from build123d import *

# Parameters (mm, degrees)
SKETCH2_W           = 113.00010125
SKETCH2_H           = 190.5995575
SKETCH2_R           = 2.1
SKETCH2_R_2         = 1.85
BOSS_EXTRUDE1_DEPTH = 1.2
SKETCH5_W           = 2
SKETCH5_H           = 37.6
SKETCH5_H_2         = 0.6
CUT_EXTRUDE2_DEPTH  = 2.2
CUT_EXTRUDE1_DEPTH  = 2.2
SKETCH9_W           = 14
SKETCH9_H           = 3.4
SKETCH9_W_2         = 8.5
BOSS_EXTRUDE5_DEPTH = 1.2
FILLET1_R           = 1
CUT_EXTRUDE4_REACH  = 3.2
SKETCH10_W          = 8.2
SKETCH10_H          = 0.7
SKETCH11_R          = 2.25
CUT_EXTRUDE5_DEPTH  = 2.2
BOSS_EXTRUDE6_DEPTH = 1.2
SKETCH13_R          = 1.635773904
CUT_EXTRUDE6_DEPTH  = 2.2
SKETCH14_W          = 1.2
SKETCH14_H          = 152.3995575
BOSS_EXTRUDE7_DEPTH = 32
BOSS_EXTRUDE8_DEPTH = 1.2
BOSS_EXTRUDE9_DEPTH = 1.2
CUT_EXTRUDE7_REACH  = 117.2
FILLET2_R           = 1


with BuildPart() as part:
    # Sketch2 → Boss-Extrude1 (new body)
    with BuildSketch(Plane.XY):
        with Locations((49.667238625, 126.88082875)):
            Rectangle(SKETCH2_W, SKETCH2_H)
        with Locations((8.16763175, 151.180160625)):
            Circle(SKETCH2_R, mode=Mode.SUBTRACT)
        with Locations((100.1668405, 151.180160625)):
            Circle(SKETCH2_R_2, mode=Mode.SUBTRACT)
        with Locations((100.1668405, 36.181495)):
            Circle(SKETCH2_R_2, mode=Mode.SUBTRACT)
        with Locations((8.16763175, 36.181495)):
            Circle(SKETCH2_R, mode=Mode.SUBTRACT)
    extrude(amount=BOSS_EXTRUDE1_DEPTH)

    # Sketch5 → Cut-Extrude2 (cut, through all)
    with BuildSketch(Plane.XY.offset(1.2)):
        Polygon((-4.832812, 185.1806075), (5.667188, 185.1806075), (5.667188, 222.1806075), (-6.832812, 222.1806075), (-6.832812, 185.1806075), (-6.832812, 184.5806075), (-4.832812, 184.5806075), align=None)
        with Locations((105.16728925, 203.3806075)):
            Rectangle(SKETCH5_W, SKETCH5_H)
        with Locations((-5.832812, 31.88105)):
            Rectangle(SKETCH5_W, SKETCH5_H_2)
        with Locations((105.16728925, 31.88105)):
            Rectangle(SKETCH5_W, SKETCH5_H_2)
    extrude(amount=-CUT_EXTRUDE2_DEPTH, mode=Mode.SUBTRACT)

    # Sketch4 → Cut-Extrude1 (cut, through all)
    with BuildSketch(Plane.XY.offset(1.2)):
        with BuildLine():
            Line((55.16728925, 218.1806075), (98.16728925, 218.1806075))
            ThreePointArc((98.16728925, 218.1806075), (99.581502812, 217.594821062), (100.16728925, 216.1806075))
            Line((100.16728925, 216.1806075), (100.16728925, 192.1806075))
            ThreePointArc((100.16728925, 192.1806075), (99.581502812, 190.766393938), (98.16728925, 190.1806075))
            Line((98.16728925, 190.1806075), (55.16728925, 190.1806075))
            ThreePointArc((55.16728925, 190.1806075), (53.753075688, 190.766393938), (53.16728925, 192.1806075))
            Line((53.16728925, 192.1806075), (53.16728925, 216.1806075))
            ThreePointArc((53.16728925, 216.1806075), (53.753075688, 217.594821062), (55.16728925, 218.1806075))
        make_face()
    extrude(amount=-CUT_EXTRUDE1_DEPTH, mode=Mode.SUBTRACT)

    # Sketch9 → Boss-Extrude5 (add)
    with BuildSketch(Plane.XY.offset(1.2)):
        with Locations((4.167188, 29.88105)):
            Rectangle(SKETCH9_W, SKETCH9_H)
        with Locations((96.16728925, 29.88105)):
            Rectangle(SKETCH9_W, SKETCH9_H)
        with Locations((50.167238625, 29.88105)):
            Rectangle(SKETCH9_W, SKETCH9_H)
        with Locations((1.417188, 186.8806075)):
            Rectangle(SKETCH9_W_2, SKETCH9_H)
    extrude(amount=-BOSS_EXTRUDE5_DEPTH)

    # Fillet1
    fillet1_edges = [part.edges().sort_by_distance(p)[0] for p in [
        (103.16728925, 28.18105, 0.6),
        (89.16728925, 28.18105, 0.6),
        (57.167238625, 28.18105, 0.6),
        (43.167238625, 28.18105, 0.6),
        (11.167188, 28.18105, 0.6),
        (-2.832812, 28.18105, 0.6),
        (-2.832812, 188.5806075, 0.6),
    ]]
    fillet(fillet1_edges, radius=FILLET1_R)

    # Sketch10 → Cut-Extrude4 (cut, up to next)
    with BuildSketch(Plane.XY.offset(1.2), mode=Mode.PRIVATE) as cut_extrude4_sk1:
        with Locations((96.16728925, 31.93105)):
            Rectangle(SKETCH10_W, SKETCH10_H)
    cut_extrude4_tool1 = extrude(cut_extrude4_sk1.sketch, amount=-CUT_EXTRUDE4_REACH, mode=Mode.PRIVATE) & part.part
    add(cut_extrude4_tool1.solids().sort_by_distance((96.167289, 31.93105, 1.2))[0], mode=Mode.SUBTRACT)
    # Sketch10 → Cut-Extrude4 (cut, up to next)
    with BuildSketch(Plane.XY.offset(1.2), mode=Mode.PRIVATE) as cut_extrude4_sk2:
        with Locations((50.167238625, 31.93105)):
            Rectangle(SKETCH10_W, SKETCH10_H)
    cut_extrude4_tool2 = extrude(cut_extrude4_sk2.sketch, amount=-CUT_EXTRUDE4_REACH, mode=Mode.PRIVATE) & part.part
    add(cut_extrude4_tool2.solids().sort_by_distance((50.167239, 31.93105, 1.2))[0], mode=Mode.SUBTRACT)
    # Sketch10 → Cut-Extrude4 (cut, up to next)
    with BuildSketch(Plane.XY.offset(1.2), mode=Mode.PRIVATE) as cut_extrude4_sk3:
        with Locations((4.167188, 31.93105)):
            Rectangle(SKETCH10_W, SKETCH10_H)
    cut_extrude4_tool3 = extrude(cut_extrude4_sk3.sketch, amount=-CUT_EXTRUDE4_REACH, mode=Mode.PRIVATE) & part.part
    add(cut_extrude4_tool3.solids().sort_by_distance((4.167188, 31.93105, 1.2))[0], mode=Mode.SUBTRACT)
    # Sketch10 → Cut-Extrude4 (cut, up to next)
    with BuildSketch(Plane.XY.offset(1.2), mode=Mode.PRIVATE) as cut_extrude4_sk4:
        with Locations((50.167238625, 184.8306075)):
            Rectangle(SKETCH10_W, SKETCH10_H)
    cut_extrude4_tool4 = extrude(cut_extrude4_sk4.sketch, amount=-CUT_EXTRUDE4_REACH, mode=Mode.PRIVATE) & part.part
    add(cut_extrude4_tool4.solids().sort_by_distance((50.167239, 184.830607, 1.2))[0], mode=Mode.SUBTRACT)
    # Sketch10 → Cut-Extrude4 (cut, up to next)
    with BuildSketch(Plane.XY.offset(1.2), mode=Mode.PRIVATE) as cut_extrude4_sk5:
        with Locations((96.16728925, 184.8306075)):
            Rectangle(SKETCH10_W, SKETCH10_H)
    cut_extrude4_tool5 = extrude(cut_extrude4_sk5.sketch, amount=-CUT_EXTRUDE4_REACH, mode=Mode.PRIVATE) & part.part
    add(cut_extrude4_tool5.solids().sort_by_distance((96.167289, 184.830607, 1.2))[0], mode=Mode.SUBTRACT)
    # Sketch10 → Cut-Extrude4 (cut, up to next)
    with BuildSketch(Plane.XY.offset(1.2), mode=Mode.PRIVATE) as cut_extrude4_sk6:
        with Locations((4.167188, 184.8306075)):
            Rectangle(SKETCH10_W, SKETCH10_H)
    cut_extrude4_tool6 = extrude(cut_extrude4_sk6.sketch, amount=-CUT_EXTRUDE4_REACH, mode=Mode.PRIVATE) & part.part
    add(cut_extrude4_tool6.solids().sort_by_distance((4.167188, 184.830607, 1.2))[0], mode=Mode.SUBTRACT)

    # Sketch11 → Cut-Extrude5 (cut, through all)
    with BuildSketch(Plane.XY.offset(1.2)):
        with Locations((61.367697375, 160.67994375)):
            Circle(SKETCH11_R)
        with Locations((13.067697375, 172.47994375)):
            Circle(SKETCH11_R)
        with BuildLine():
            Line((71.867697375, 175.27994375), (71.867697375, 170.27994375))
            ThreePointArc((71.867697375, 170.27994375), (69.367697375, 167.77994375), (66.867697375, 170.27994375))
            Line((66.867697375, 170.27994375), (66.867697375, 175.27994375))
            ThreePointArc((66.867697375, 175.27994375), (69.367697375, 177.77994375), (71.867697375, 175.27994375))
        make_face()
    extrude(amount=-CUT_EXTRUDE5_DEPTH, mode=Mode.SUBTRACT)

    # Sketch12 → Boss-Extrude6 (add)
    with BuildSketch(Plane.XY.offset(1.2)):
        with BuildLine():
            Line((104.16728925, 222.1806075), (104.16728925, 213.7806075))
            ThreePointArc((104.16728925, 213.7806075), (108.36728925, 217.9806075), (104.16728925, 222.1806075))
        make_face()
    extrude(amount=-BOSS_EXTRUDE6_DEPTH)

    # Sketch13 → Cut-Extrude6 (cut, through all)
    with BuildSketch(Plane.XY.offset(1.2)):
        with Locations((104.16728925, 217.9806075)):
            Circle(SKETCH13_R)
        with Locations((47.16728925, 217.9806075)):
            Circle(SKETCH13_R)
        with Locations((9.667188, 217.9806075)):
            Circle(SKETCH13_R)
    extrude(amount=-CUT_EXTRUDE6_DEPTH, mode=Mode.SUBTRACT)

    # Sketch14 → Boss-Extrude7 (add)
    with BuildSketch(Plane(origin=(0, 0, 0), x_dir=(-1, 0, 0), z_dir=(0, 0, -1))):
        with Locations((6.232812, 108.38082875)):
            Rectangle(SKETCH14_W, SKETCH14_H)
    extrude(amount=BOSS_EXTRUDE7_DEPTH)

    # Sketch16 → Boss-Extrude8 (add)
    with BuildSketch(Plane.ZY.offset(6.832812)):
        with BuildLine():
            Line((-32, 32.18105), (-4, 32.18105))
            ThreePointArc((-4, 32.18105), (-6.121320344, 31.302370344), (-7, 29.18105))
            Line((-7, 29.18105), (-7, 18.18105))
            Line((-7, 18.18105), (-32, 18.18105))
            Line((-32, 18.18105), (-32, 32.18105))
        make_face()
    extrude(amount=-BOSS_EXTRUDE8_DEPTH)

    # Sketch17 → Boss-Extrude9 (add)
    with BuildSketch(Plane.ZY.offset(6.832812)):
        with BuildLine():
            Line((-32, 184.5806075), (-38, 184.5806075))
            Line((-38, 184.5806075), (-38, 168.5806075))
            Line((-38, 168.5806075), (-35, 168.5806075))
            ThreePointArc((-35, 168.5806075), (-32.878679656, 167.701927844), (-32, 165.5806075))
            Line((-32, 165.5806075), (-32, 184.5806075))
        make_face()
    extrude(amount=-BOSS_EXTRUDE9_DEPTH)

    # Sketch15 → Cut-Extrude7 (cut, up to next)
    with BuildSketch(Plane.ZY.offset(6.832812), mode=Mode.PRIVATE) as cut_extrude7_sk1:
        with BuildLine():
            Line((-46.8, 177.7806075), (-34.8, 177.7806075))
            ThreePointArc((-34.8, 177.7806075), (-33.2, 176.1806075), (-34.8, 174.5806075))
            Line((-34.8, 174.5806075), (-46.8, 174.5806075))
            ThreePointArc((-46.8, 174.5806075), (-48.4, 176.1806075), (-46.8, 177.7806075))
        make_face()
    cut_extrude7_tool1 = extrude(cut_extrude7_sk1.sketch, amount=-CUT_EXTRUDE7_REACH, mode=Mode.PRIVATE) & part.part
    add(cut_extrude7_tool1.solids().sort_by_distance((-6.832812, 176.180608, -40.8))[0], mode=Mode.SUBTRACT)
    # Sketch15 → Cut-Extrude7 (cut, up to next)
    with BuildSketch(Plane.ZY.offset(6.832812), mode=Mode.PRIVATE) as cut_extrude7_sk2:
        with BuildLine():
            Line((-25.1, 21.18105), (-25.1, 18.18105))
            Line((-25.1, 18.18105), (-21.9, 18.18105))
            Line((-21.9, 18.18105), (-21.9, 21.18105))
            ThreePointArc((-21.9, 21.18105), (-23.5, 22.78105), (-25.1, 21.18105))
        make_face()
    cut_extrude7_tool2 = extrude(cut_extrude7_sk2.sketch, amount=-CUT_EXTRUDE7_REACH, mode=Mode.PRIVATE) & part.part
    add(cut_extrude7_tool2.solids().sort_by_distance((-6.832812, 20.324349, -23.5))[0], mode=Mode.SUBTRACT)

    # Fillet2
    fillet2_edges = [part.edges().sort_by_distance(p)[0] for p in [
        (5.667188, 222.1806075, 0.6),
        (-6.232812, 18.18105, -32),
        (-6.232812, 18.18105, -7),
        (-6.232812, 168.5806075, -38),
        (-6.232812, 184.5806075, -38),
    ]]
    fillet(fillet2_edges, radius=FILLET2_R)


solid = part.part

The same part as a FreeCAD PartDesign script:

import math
import FreeCAD as App
import Part
import Sketcher
from FreeCAD import Vector


def edges_at(feature, points):
    """Names of the edges that pass closest to the given points."""
    edges = feature.Shape.Edges
    near = lambda p: min(range(len(edges)), key=lambda i: edges[i].distToShape(Part.Vertex(*p))[0])
    return sorted({f"Edge{near(p) + 1}" for p in points})

doc = App.newDocument("Part")
body = doc.addObject("PartDesign::Body", "Body")

# Sketch on XY plane
sketch1 = body.newObject("Sketcher::SketchObject", "Sketch")
sketch1.AttachmentSupport = (doc.getObject("XY_Plane"), [""])
sketch1.MapMode = "FlatFace"
sketch1.addGeometry([
    Part.LineSegment(Vector(-6.8, 222.2, 0), Vector(-6.8, 31.6, 0)),  # 0
    Part.LineSegment(Vector(-6.8, 31.6, 0), Vector(106.2, 31.6, 0)),  # 1
    Part.LineSegment(Vector(106.2, 31.6, 0), Vector(106.2, 222.2, 0)),  # 2
    Part.LineSegment(Vector(106.2, 222.2, 0), Vector(-6.8, 222.2, 0)),  # 3
    Part.Circle(Vector(8.2, 36.2, 0), Vector(0, 0, 1), 2.1),  # 4
    Part.Circle(Vector(100.2, 36.2, 0), Vector(0, 0, 1), 1.9),  # 5
    Part.Circle(Vector(8.2, 151.2, 0), Vector(0, 0, 1), 2.1),  # 6
    Part.Circle(Vector(100.2, 151.2, 0), Vector(0, 0, 1), 1.9),  # 7
], False)
sketch1.addConstraint([
    Sketcher.Constraint("Coincident", 0, 2, 1, 1),
    Sketcher.Constraint("Coincident", 1, 2, 2, 1),
    Sketcher.Constraint("Coincident", 2, 2, 3, 1),
    Sketcher.Constraint("Coincident", 3, 2, 0, 1),
    Sketcher.Constraint("Vertical", 0),
    Sketcher.Constraint("Horizontal", 1),
    Sketcher.Constraint("Vertical", 2),
    Sketcher.Constraint("Horizontal", 3),
    Sketcher.Constraint("Equal", 4, 6),
    Sketcher.Constraint("Equal", 5, 7),
    Sketcher.Constraint("Horizontal", 4, 3, 5, 3),
    Sketcher.Constraint("Horizontal", 6, 3, 7, 3),
    Sketcher.Constraint("Vertical", 4, 3, 6, 3),
    Sketcher.Constraint("Vertical", 5, 3, 7, 3),
    Sketcher.Constraint("Diameter", 4, 4.2),
    Sketcher.Constraint("Diameter", 5, 3.7),
    Sketcher.Constraint("DistanceX", 1, 1, 1, 2, 113.000101),
    Sketcher.Constraint("DistanceY", 0, 2, 0, 1, 190.599558),
    Sketcher.Constraint("DistanceX", -1, 1, 4, 3, 8.167632),
    Sketcher.Constraint("DistanceX", -1, 1, 5, 3, 100.166841),
    Sketcher.Constraint("DistanceY", -1, 1, 6, 3, 151.180161),
    Sketcher.Constraint("DistanceX", 0, 2, -1, 1, 6.832812),
    Sketcher.Constraint("DistanceY", -1, 1, 0, 2, 31.58105),
    Sketcher.Constraint("DistanceY", -1, 1, 4, 3, 36.181495),
])
pad1 = body.newObject("PartDesign::Pad", "Pad")
pad1.Profile = sketch1
pad1.Length = 1.2

# Sketch on XY plane
sketch2 = body.newObject("Sketcher::SketchObject", "Sketch001")
sketch2.AttachmentSupport = (doc.getObject("XY_Plane"), [""])
sketch2.MapMode = "FlatFace"
sketch2.AttachmentOffset = App.Placement(Vector(0, 0, 1.2), App.Rotation())
sketch2.addGeometry([
    Part.LineSegment(Vector(-4.8, 185.2, 0), Vector(5.7, 185.2, 0)),  # 0
    Part.LineSegment(Vector(5.7, 185.2, 0), Vector(5.7, 222.2, 0)),  # 1
    Part.LineSegment(Vector(5.7, 222.2, 0), Vector(-6.8, 222.2, 0)),  # 2
    Part.LineSegment(Vector(-6.8, 222.2, 0), Vector(-6.8, 184.6, 0)),  # 3
    Part.LineSegment(Vector(-6.8, 184.6, 0), Vector(-4.8, 184.6, 0)),  # 4
    Part.LineSegment(Vector(-4.8, 184.6, 0), Vector(-4.8, 185.2, 0)),  # 5
    Part.LineSegment(Vector(104.2, 222.2, 0), Vector(104.2, 184.6, 0)),  # 6
    Part.LineSegment(Vector(104.2, 184.6, 0), Vector(106.2, 184.6, 0)),  # 7
    Part.LineSegment(Vector(106.2, 184.6, 0), Vector(106.2, 222.2, 0)),  # 8
    Part.LineSegment(Vector(106.2, 222.2, 0), Vector(104.2, 222.2, 0)),  # 9
    Part.LineSegment(Vector(-6.8, 32.2, 0), Vector(-6.8, 31.6, 0)),  # 10
    Part.LineSegment(Vector(-6.8, 31.6, 0), Vector(-4.8, 31.6, 0)),  # 11
    Part.LineSegment(Vector(-4.8, 31.6, 0), Vector(-4.8, 32.2, 0)),  # 12
    Part.LineSegment(Vector(-4.8, 32.2, 0), Vector(-6.8, 32.2, 0)),  # 13
    Part.LineSegment(Vector(104.2, 32.2, 0), Vector(104.2, 31.6, 0)),  # 14
    Part.LineSegment(Vector(104.2, 31.6, 0), Vector(106.2, 31.6, 0)),  # 15
    Part.LineSegment(Vector(106.2, 31.6, 0), Vector(106.2, 32.2, 0)),  # 16
    Part.LineSegment(Vector(106.2, 32.2, 0), Vector(104.2, 32.2, 0)),  # 17
], False)
sketch2.addConstraint([
    Sketcher.Constraint("Coincident", 0, 2, 1, 1),
    Sketcher.Constraint("Coincident", 1, 2, 2, 1),
    Sketcher.Constraint("Coincident", 2, 2, 3, 1),
    Sketcher.Constraint("Coincident", 3, 2, 4, 1),
    Sketcher.Constraint("Coincident", 4, 2, 5, 1),
    Sketcher.Constraint("Coincident", 5, 2, 0, 1),
    Sketcher.Constraint("Coincident", 6, 2, 7, 1),
    Sketcher.Constraint("Coincident", 7, 2, 8, 1),
    Sketcher.Constraint("Coincident", 8, 2, 9, 1),
    Sketcher.Constraint("Coincident", 9, 2, 6, 1),
    Sketcher.Constraint("Coincident", 10, 2, 11, 1),
    Sketcher.Constraint("Coincident", 11, 2, 12, 1),
    Sketcher.Constraint("Coincident", 12, 2, 13, 1),
    Sketcher.Constraint("Coincident", 13, 2, 10, 1),
    Sketcher.Constraint("Coincident", 14, 2, 15, 1),
    Sketcher.Constraint("Coincident", 15, 2, 16, 1),
    Sketcher.Constraint("Coincident", 16, 2, 17, 1),
    Sketcher.Constraint("Coincident", 17, 2, 14, 1),
    Sketcher.Constraint("Horizontal", 0),
    Sketcher.Constraint("Vertical", 1),
    Sketcher.Constraint("Horizontal", 2),
    Sketcher.Constraint("Vertical", 3),
    Sketcher.Constraint("Horizontal", 4),
    Sketcher.Constraint("Vertical", 5),
    Sketcher.Constraint("Vertical", 6),
    Sketcher.Constraint("Horizontal", 7),
    Sketcher.Constraint("Vertical", 8),
    Sketcher.Constraint("Horizontal", 9),
    Sketcher.Constraint("Vertical", 10),
    Sketcher.Constraint("Horizontal", 11),
    Sketcher.Constraint("Vertical", 12),
    Sketcher.Constraint("Horizontal", 13),
    Sketcher.Constraint("Vertical", 14),
    Sketcher.Constraint("Horizontal", 15),
    Sketcher.Constraint("Vertical", 16),
    Sketcher.Constraint("Horizontal", 17),
    Sketcher.Constraint("Horizontal", 4, 2, 6, 2),
    Sketcher.Constraint("Horizontal", 2, 2, 8, 2),
    Sketcher.Constraint("Horizontal", 11, 2, 14, 2),
    Sketcher.Constraint("Horizontal", 13, 2, 16, 2),
    Sketcher.Constraint("Vertical", 3, 2, 10, 2),
    Sketcher.Constraint("Vertical", 5, 2, 11, 2),
    Sketcher.Constraint("Vertical", 9, 2, 14, 2),
    Sketcher.Constraint("Vertical", 8, 2, 15, 2),
    Sketcher.Constraint("Equal", 4, 7),
    Sketcher.Constraint("Equal", 5, 10),
    Sketcher.Constraint("DistanceX", 4, 1, 4, 2, 2.0),
    Sketcher.Constraint("DistanceY", 1, 1, 1, 2, 37.0),
    Sketcher.Constraint("DistanceX", 0, 1, 0, 2, 10.5),
    Sketcher.Constraint("DistanceY", 3, 2, 3, 1, 37.6),
    Sketcher.Constraint("DistanceX", 0, 2, 6, 2, 98.500101),
    Sketcher.Constraint("DistanceX", -1, 1, 0, 2, 5.667188),
    Sketcher.Constraint("DistanceY", -1, 1, 10, 2, 31.58105),
    Sketcher.Constraint("DistanceY", -1, 1, 0, 2, 185.180608),
])
pocket1 = body.newObject("PartDesign::Pocket", "Pocket")
pocket1.Profile = sketch2
pocket1.Type = "ThroughAll"

# Sketch on XY plane
sketch3 = body.newObject("Sketcher::SketchObject", "Sketch002")
sketch3.AttachmentSupport = (doc.getObject("XY_Plane"), [""])
sketch3.MapMode = "FlatFace"
sketch3.AttachmentOffset = App.Placement(Vector(0, 0, 1.2), App.Rotation())
sketch3.addGeometry([
    Part.LineSegment(Vector(98.2, 218.2, 0), Vector(55.2, 218.2, 0)),  # 0
    Part.ArcOfCircle(Part.Circle(Vector(55.2, 216.2, 0), Vector(0, 0, 1), 2), math.radians(90), math.radians(180)),  # 1
    Part.LineSegment(Vector(53.2, 216.2, 0), Vector(53.2, 192.2, 0)),  # 2
    Part.ArcOfCircle(Part.Circle(Vector(55.2, 192.2, 0), Vector(0, 0, 1), 2), math.radians(-180), math.radians(-90)),  # 3
    Part.LineSegment(Vector(55.2, 190.2, 0), Vector(98.2, 190.2, 0)),  # 4
    Part.ArcOfCircle(Part.Circle(Vector(98.2, 192.2, 0), Vector(0, 0, 1), 2), math.radians(-90), math.radians(0)),  # 5
    Part.LineSegment(Vector(100.2, 192.2, 0), Vector(100.2, 216.2, 0)),  # 6
    Part.ArcOfCircle(Part.Circle(Vector(98.2, 216.2, 0), Vector(0, 0, 1), 2), math.radians(0), math.radians(90)),  # 7
], False)
sketch3.addConstraint([
    Sketcher.Constraint("Tangent", 0, 2, 1, 1),
    Sketcher.Constraint("Tangent", 1, 2, 2, 1),
    Sketcher.Constraint("Tangent", 2, 2, 3, 1),
    Sketcher.Constraint("Tangent", 3, 2, 4, 1),
    Sketcher.Constraint("Tangent", 4, 2, 5, 1),
    Sketcher.Constraint("Tangent", 5, 2, 6, 1),
    Sketcher.Constraint("Tangent", 6, 2, 7, 1),
    Sketcher.Constraint("Tangent", 7, 2, 0, 1),
    Sketcher.Constraint("Horizontal", 0),
    Sketcher.Constraint("Vertical", 2),
    Sketcher.Constraint("Horizontal", 4),
    Sketcher.Constraint("Vertical", 6),
    Sketcher.Constraint("Equal", 1, 3),
    Sketcher.Constraint("Equal", 3, 5),
    Sketcher.Constraint("Equal", 5, 7),
    Sketcher.Constraint("Radius", 1, 2.0),
    Sketcher.Constraint("DistanceX", 0, 2, 0, 1, 43.0),
    Sketcher.Constraint("DistanceY", 2, 2, 2, 1, 24.0),
    Sketcher.Constraint("DistanceX", -1, 1, 1, 3, 55.167289),
    Sketcher.Constraint("DistanceY", -1, 1, 1, 3, 216.180607),
])
pocket2 = body.newObject("PartDesign::Pocket", "Pocket001")
pocket2.Profile = sketch3
pocket2.Type = "ThroughAll"

# Sketch on XY plane
sketch4 = body.newObject("Sketcher::SketchObject", "Sketch003")
sketch4.AttachmentSupport = (doc.getObject("XY_Plane"), [""])
sketch4.MapMode = "FlatFace"
sketch4.AttachmentOffset = App.Placement(Vector(0, 0, 1.2), App.Rotation())
sketch4.addGeometry([
    Part.LineSegment(Vector(-2.8, 31.6, 0), Vector(-2.8, 28.2, 0)),  # 0
    Part.LineSegment(Vector(-2.8, 28.2, 0), Vector(11.2, 28.2, 0)),  # 1
    Part.LineSegment(Vector(11.2, 28.2, 0), Vector(11.2, 31.6, 0)),  # 2
    Part.LineSegment(Vector(11.2, 31.6, 0), Vector(-2.8, 31.6, 0)),  # 3
    Part.LineSegment(Vector(89.2, 31.6, 0), Vector(89.2, 28.2, 0)),  # 4
    Part.LineSegment(Vector(89.2, 28.2, 0), Vector(103.2, 28.2, 0)),  # 5
    Part.LineSegment(Vector(103.2, 28.2, 0), Vector(103.2, 31.6, 0)),  # 6
    Part.LineSegment(Vector(103.2, 31.6, 0), Vector(89.2, 31.6, 0)),  # 7
    Part.LineSegment(Vector(43.2, 31.6, 0), Vector(43.2, 28.2, 0)),  # 8
    Part.LineSegment(Vector(43.2, 28.2, 0), Vector(57.2, 28.2, 0)),  # 9
    Part.LineSegment(Vector(57.2, 28.2, 0), Vector(57.2, 31.6, 0)),  # 10
    Part.LineSegment(Vector(57.2, 31.6, 0), Vector(43.2, 31.6, 0)),  # 11
    Part.LineSegment(Vector(-2.8, 188.6, 0), Vector(-2.8, 185.2, 0)),  # 12
    Part.LineSegment(Vector(-2.8, 185.2, 0), Vector(5.7, 185.2, 0)),  # 13
    Part.LineSegment(Vector(5.7, 185.2, 0), Vector(5.7, 188.6, 0)),  # 14
    Part.LineSegment(Vector(5.7, 188.6, 0), Vector(-2.8, 188.6, 0)),  # 15
], False)
sketch4.addConstraint([
    Sketcher.Constraint("Coincident", 0, 2, 1, 1),
    Sketcher.Constraint("Coincident", 1, 2, 2, 1),
    Sketcher.Constraint("Coincident", 2, 2, 3, 1),
    Sketcher.Constraint("Coincident", 3, 2, 0, 1),
    Sketcher.Constraint("Coincident", 4, 2, 5, 1),
    Sketcher.Constraint("Coincident", 5, 2, 6, 1),
    Sketcher.Constraint("Coincident", 6, 2, 7, 1),
    Sketcher.Constraint("Coincident", 7, 2, 4, 1),
    Sketcher.Constraint("Coincident", 8, 2, 9, 1),
    Sketcher.Constraint("Coincident", 9, 2, 10, 1),
    Sketcher.Constraint("Coincident", 10, 2, 11, 1),
    Sketcher.Constraint("Coincident", 11, 2, 8, 1),
    Sketcher.Constraint("Coincident", 12, 2, 13, 1),
    Sketcher.Constraint("Coincident", 13, 2, 14, 1),
    Sketcher.Constraint("Coincident", 14, 2, 15, 1),
    Sketcher.Constraint("Coincident", 15, 2, 12, 1),
    Sketcher.Constraint("Vertical", 0),
    Sketcher.Constraint("Horizontal", 1),
    Sketcher.Constraint("Vertical", 2),
    Sketcher.Constraint("Horizontal", 3),
    Sketcher.Constraint("Vertical", 4),
    Sketcher.Constraint("Horizontal", 5),
    Sketcher.Constraint("Vertical", 6),
    Sketcher.Constraint("Horizontal", 7),
    Sketcher.Constraint("Vertical", 8),
    Sketcher.Constraint("Horizontal", 9),
    Sketcher.Constraint("Vertical", 10),
    Sketcher.Constraint("Horizontal", 11),
    Sketcher.Constraint("Vertical", 12),
    Sketcher.Constraint("Horizontal", 13),
    Sketcher.Constraint("Vertical", 14),
    Sketcher.Constraint("Horizontal", 15),
    Sketcher.Constraint("Horizontal", 1, 2, 4, 2),
    Sketcher.Constraint("Horizontal", 3, 2, 6, 2),
    Sketcher.Constraint("Horizontal", 5, 2, 8, 2),
    Sketcher.Constraint("Horizontal", 7, 2, 10, 2),
    Sketcher.Constraint("Vertical", 3, 2, 12, 2),
    Sketcher.Constraint("Equal", 3, 5),
    Sketcher.Constraint("Equal", 7, 9),
    Sketcher.Constraint("Equal", 10, 12),
    Sketcher.Constraint("DistanceX", 1, 1, 1, 2, 14.0),
    Sketcher.Constraint("DistanceX", 13, 1, 13, 2, 8.5),
    Sketcher.Constraint("DistanceY", 0, 2, 0, 1, 3.4),
    Sketcher.Constraint("DistanceX", 1, 2, 4, 2, 78.000101),
    Sketcher.Constraint("DistanceY", -1, 1, 0, 2, 28.18105),
    Sketcher.Constraint("DistanceX", -1, 1, 4, 2, 89.167289),
    Sketcher.Constraint("DistanceX", -1, 1, 8, 2, 43.167239),
    Sketcher.Constraint("DistanceY", -1, 1, 12, 2, 185.180608),
])
pad2 = body.newObject("PartDesign::Pad", "Pad001")
pad2.Profile = sketch4
pad2.Length = 1.2
pad2.Reversed = True
doc.recompute()

fillet = body.newObject("PartDesign::Fillet", "Fillet")
fillet.Base = (pad2, edges_at(pad2, [
    (103.167, 28.181, 0.6),
    (89.167, 28.181, 0.6),
    (57.167, 28.181, 0.6),
    (43.167, 28.181, 0.6),
    (11.167, 28.181, 0.6),
    (-2.833, 28.181, 0.6),
    (-2.833, 188.581, 0.6),
]))
fillet.Radius = 1

# Sketch on XY plane
sketch5 = body.newObject("Sketcher::SketchObject", "Sketch004")
sketch5.AttachmentSupport = (doc.getObject("XY_Plane"), [""])
sketch5.MapMode = "FlatFace"
sketch5.AttachmentOffset = App.Placement(Vector(0, 0, 1.2), App.Rotation())
sketch5.addGeometry([
    Part.LineSegment(Vector(92.1, 32.3, 0), Vector(92.1, 31.6, 0)),
    Part.LineSegment(Vector(92.1, 31.6, 0), Vector(100.3, 31.6, 0)),
    Part.LineSegment(Vector(100.3, 31.6, 0), Vector(100.3, 32.3, 0)),
    Part.LineSegment(Vector(100.3, 32.3, 0), Vector(92.1, 32.3, 0)),
], False)
sketch5.addConstraint([
    Sketcher.Constraint("Coincident", 0, 2, 1, 1),
    Sketcher.Constraint("Coincident", 1, 2, 2, 1),
    Sketcher.Constraint("Coincident", 2, 2, 3, 1),
    Sketcher.Constraint("Coincident", 3, 2, 0, 1),
    Sketcher.Constraint("Vertical", 0),
    Sketcher.Constraint("Horizontal", 1),
    Sketcher.Constraint("Vertical", 2),
    Sketcher.Constraint("Horizontal", 3),
    Sketcher.Constraint("DistanceX", 1, 1, 1, 2, 8.2),
    Sketcher.Constraint("DistanceY", 0, 2, 0, 1, 0.7),
    Sketcher.Constraint("DistanceX", -1, 1, 0, 2, 92.067289),
    Sketcher.Constraint("DistanceY", -1, 1, 0, 2, 31.58105),
])
pocket3 = body.newObject("PartDesign::Pocket", "Pocket002")
pocket3.Profile = sketch5
pocket3.Type = "UpToFirst"

# Sketch on XY plane
sketch6 = body.newObject("Sketcher::SketchObject", "Sketch005")
sketch6.AttachmentSupport = (doc.getObject("XY_Plane"), [""])
sketch6.MapMode = "FlatFace"
sketch6.AttachmentOffset = App.Placement(Vector(0, 0, 1.2), App.Rotation())
sketch6.addGeometry([
    Part.LineSegment(Vector(46.1, 32.3, 0), Vector(46.1, 31.6, 0)),
    Part.LineSegment(Vector(46.1, 31.6, 0), Vector(54.3, 31.6, 0)),
    Part.LineSegment(Vector(54.3, 31.6, 0), Vector(54.3, 32.3, 0)),
    Part.LineSegment(Vector(54.3, 32.3, 0), Vector(46.1, 32.3, 0)),
], False)
sketch6.addConstraint([
    Sketcher.Constraint("Coincident", 0, 2, 1, 1),
    Sketcher.Constraint("Coincident", 1, 2, 2, 1),
    Sketcher.Constraint("Coincident", 2, 2, 3, 1),
    Sketcher.Constraint("Coincident", 3, 2, 0, 1),
    Sketcher.Constraint("Vertical", 0),
    Sketcher.Constraint("Horizontal", 1),
    Sketcher.Constraint("Vertical", 2),
    Sketcher.Constraint("Horizontal", 3),
    Sketcher.Constraint("DistanceX", 1, 1, 1, 2, 8.2),
    Sketcher.Constraint("DistanceY", 0, 2, 0, 1, 0.7),
    Sketcher.Constraint("DistanceX", -1, 1, 0, 2, 46.067239),
    Sketcher.Constraint("DistanceY", -1, 1, 0, 2, 31.58105),
])
pocket4 = body.newObject("PartDesign::Pocket", "Pocket003")
pocket4.Profile = sketch6
pocket4.Type = "UpToFirst"

# Sketch on XY plane
sketch7 = body.newObject("Sketcher::SketchObject", "Sketch006")
sketch7.AttachmentSupport = (doc.getObject("XY_Plane"), [""])
sketch7.MapMode = "FlatFace"
sketch7.AttachmentOffset = App.Placement(Vector(0, 0, 1.2), App.Rotation())
sketch7.addGeometry([
    Part.LineSegment(Vector(0.1, 32.3, 0), Vector(0.1, 31.6, 0)),
    Part.LineSegment(Vector(0.1, 31.6, 0), Vector(8.3, 31.6, 0)),
    Part.LineSegment(Vector(8.3, 31.6, 0), Vector(8.3, 32.3, 0)),
    Part.LineSegment(Vector(8.3, 32.3, 0), Vector(0.1, 32.3, 0)),
], False)
sketch7.addConstraint([
    Sketcher.Constraint("Coincident", 0, 2, 1, 1),
    Sketcher.Constraint("Coincident", 1, 2, 2, 1),
    Sketcher.Constraint("Coincident", 2, 2, 3, 1),
    Sketcher.Constraint("Coincident", 3, 2, 0, 1),
    Sketcher.Constraint("Vertical", 0),
    Sketcher.Constraint("Horizontal", 1),
    Sketcher.Constraint("Vertical", 2),
    Sketcher.Constraint("Horizontal", 3),
    Sketcher.Constraint("DistanceX", 1, 1, 1, 2, 8.2),
    Sketcher.Constraint("DistanceY", 0, 2, 0, 1, 0.7),
    Sketcher.Constraint("DistanceY", -1, 1, 0, 2, 31.58105),
    Sketcher.Constraint("DistanceX", -1, 1, 1, 2, 8.267188),
])
pocket5 = body.newObject("PartDesign::Pocket", "Pocket004")
pocket5.Profile = sketch7
pocket5.Type = "UpToFirst"

# Sketch on XY plane
sketch8 = body.newObject("Sketcher::SketchObject", "Sketch007")
sketch8.AttachmentSupport = (doc.getObject("XY_Plane"), [""])
sketch8.MapMode = "FlatFace"
sketch8.AttachmentOffset = App.Placement(Vector(0, 0, 1.2), App.Rotation())
sketch8.addGeometry([
    Part.LineSegment(Vector(46.1, 185.2, 0), Vector(46.1, 184.5, 0)),
    Part.LineSegment(Vector(46.1, 184.5, 0), Vector(54.3, 184.5, 0)),
    Part.LineSegment(Vector(54.3, 184.5, 0), Vector(54.3, 185.2, 0)),
    Part.LineSegment(Vector(54.3, 185.2, 0), Vector(46.1, 185.2, 0)),
], False)
sketch8.addConstraint([
    Sketcher.Constraint("Coincident", 0, 2, 1, 1),
    Sketcher.Constraint("Coincident", 1, 2, 2, 1),
    Sketcher.Constraint("Coincident", 2, 2, 3, 1),
    Sketcher.Constraint("Coincident", 3, 2, 0, 1),
    Sketcher.Constraint("Vertical", 0),
    Sketcher.Constraint("Horizontal", 1),
    Sketcher.Constraint("Vertical", 2),
    Sketcher.Constraint("Horizontal", 3),
    Sketcher.Constraint("DistanceX", 1, 1, 1, 2, 8.2),
    Sketcher.Constraint("DistanceY", 0, 2, 0, 1, 0.7),
    Sketcher.Constraint("DistanceX", -1, 1, 0, 2, 46.067239),
    Sketcher.Constraint("DistanceY", -1, 1, 0, 2, 184.480607),
])
pocket6 = body.newObject("PartDesign::Pocket", "Pocket005")
pocket6.Profile = sketch8
pocket6.Type = "UpToFirst"

# Sketch on XY plane
sketch9 = body.newObject("Sketcher::SketchObject", "Sketch008")
sketch9.AttachmentSupport = (doc.getObject("XY_Plane"), [""])
sketch9.MapMode = "FlatFace"
sketch9.AttachmentOffset = App.Placement(Vector(0, 0, 1.2), App.Rotation())
sketch9.addGeometry([
    Part.LineSegment(Vector(92.1, 185.2, 0), Vector(92.1, 184.5, 0)),
    Part.LineSegment(Vector(92.1, 184.5, 0), Vector(100.3, 184.5, 0)),
    Part.LineSegment(Vector(100.3, 184.5, 0), Vector(100.3, 185.2, 0)),
    Part.LineSegment(Vector(100.3, 185.2, 0), Vector(92.1, 185.2, 0)),
], False)
sketch9.addConstraint([
    Sketcher.Constraint("Coincident", 0, 2, 1, 1),
    Sketcher.Constraint("Coincident", 1, 2, 2, 1),
    Sketcher.Constraint("Coincident", 2, 2, 3, 1),
    Sketcher.Constraint("Coincident", 3, 2, 0, 1),
    Sketcher.Constraint("Vertical", 0),
    Sketcher.Constraint("Horizontal", 1),
    Sketcher.Constraint("Vertical", 2),
    Sketcher.Constraint("Horizontal", 3),
    Sketcher.Constraint("DistanceX", 1, 1, 1, 2, 8.2),
    Sketcher.Constraint("DistanceY", 0, 2, 0, 1, 0.7),
    Sketcher.Constraint("DistanceX", -1, 1, 0, 2, 92.067289),
    Sketcher.Constraint("DistanceY", -1, 1, 0, 2, 184.480607),
])
pocket7 = body.newObject("PartDesign::Pocket", "Pocket006")
pocket7.Profile = sketch9
pocket7.Type = "UpToFirst"

# Sketch on XY plane
sketch10 = body.newObject("Sketcher::SketchObject", "Sketch009")
sketch10.AttachmentSupport = (doc.getObject("XY_Plane"), [""])
sketch10.MapMode = "FlatFace"
sketch10.AttachmentOffset = App.Placement(Vector(0, 0, 1.2), App.Rotation())
sketch10.addGeometry([
    Part.LineSegment(Vector(0.1, 185.2, 0), Vector(0.1, 184.5, 0)),
    Part.LineSegment(Vector(0.1, 184.5, 0), Vector(8.3, 184.5, 0)),
    Part.LineSegment(Vector(8.3, 184.5, 0), Vector(8.3, 185.2, 0)),
    Part.LineSegment(Vector(8.3, 185.2, 0), Vector(0.1, 185.2, 0)),
], False)
sketch10.addConstraint([
    Sketcher.Constraint("Coincident", 0, 2, 1, 1),
    Sketcher.Constraint("Coincident", 1, 2, 2, 1),
    Sketcher.Constraint("Coincident", 2, 2, 3, 1),
    Sketcher.Constraint("Coincident", 3, 2, 0, 1),
    Sketcher.Constraint("Vertical", 0),
    Sketcher.Constraint("Horizontal", 1),
    Sketcher.Constraint("Vertical", 2),
    Sketcher.Constraint("Horizontal", 3),
    Sketcher.Constraint("DistanceX", 1, 1, 1, 2, 8.2),
    Sketcher.Constraint("DistanceY", 0, 2, 0, 1, 0.7),
    Sketcher.Constraint("DistanceX", -1, 1, 1, 2, 8.267188),
    Sketcher.Constraint("DistanceY", -1, 1, 0, 2, 184.480607),
])
pocket8 = body.newObject("PartDesign::Pocket", "Pocket007")
pocket8.Profile = sketch10
pocket8.Type = "UpToFirst"

# Sketch on XY plane
sketch11 = body.newObject("Sketcher::SketchObject", "Sketch010")
sketch11.AttachmentSupport = (doc.getObject("XY_Plane"), [""])
sketch11.MapMode = "FlatFace"
sketch11.AttachmentOffset = App.Placement(Vector(0, 0, 1.2), App.Rotation())
sketch11.addGeometry([
    Part.Circle(Vector(61.4, 160.7, 0), Vector(0, 0, 1), 2.2),  # 0
    Part.Circle(Vector(13.1, 172.5, 0), Vector(0, 0, 1), 2.2),  # 1
    Part.LineSegment(Vector(71.9, 170.3, 0), Vector(71.9, 175.3, 0)),  # 2
    Part.ArcOfCircle(Part.Circle(Vector(69.4, 175.3, 0), Vector(0, 0, 1), 2.5), math.radians(0), math.radians(180)),  # 3
    Part.LineSegment(Vector(66.9, 175.3, 0), Vector(66.9, 170.3, 0)),  # 4
    Part.ArcOfCircle(Part.Circle(Vector(69.4, 170.3, 0), Vector(0, 0, 1), 2.5), math.radians(180), math.radians(360)),  # 5
], False)
sketch11.addConstraint([
    Sketcher.Constraint("Tangent", 2, 2, 3, 1),
    Sketcher.Constraint("Tangent", 3, 2, 4, 1),
    Sketcher.Constraint("Tangent", 4, 2, 5, 1),
    Sketcher.Constraint("Tangent", 5, 2, 2, 1),
    Sketcher.Constraint("Vertical", 2),
    Sketcher.Constraint("Vertical", 4),
    Sketcher.Constraint("Equal", 0, 1),
    Sketcher.Constraint("Diameter", 0, 4.5),
    Sketcher.Constraint("Radius", 3, 2.5),
    Sketcher.Constraint("DistanceY", 2, 1, 2, 2, 5.0),
    Sketcher.Constraint("DistanceX", 0, 3, 3, 3, 8.0),
    Sketcher.Constraint("DistanceX", 1, 3, 0, 3, 48.3),
    Sketcher.Constraint("DistanceY", 0, 3, 1, 3, 11.8),
    Sketcher.Constraint("DistanceY", 0, 3, 3, 3, 14.6),
    Sketcher.Constraint("DistanceX", -1, 1, 0, 3, 61.367697),
    Sketcher.Constraint("DistanceY", -1, 1, 0, 3, 160.679944),
])
pocket9 = body.newObject("PartDesign::Pocket", "Pocket008")
pocket9.Profile = sketch11
pocket9.Type = "ThroughAll"

# Sketch on XY plane
sketch12 = body.newObject("Sketcher::SketchObject", "Sketch011")
sketch12.AttachmentSupport = (doc.getObject("XY_Plane"), [""])
sketch12.MapMode = "FlatFace"
sketch12.AttachmentOffset = App.Placement(Vector(0, 0, 1.2), App.Rotation())
sketch12.addGeometry([
    Part.LineSegment(Vector(104.2, 222.2, 0), Vector(104.2, 213.8, 0)),
    Part.ArcOfCircle(Part.Circle(Vector(104.2, 218, 0), Vector(0, 0, 1), 4.2), math.radians(-90), math.radians(90)),
], False)
sketch12.addConstraint([
    Sketcher.Constraint("Coincident", 0, 1, 1, 2),
    Sketcher.Constraint("Coincident", 1, 1, 0, 2),
    Sketcher.Constraint("Vertical", 0),
    Sketcher.Constraint("Vertical", 1, 3, 0, 1),
    Sketcher.Constraint("Radius", 1, 4.2),
    Sketcher.Constraint("DistanceX", -1, 1, 1, 3, 104.167289),
    Sketcher.Constraint("DistanceY", -1, 1, 1, 3, 217.980607),
])
pad3 = body.newObject("PartDesign::Pad", "Pad002")
pad3.Profile = sketch12
pad3.Length = 1.2
pad3.Reversed = True

# Sketch on XY plane
sketch13 = body.newObject("Sketcher::SketchObject", "Sketch012")
sketch13.AttachmentSupport = (doc.getObject("XY_Plane"), [""])
sketch13.MapMode = "FlatFace"
sketch13.AttachmentOffset = App.Placement(Vector(0, 0, 1.2), App.Rotation())
sketch13.addGeometry([
    Part.Circle(Vector(104.2, 218, 0), Vector(0, 0, 1), 1.6),
    Part.Circle(Vector(47.2, 218, 0), Vector(0, 0, 1), 1.6),
    Part.Circle(Vector(9.7, 218, 0), Vector(0, 0, 1), 1.6),
], False)
sketch13.addConstraint([
    Sketcher.Constraint("Equal", 0, 1),
    Sketcher.Constraint("Equal", 1, 2),
    Sketcher.Constraint("Horizontal", 0, 3, 1, 3),
    Sketcher.Constraint("Horizontal", 1, 3, 2, 3),
    Sketcher.Constraint("DistanceX", 1, 3, 0, 3, 57.0),
    Sketcher.Constraint("Diameter", 0, 3.271548),
    Sketcher.Constraint("DistanceX", 2, 3, 1, 3, 37.500101),
    Sketcher.Constraint("DistanceX", -1, 1, 0, 3, 104.167289),
    Sketcher.Constraint("DistanceY", -1, 1, 0, 3, 217.980607),
])
pocket10 = body.newObject("PartDesign::Pocket", "Pocket009")
pocket10.Profile = sketch13
pocket10.Type = "ThroughAll"

# Sketch on XY plane
sketch14 = body.newObject("Sketcher::SketchObject", "Sketch013")
sketch14.AttachmentSupport = (doc.getObject("XY_Plane"), [""])
sketch14.MapMode = "FlatFace"
sketch14.addGeometry([
    Part.LineSegment(Vector(-5.6, 184.6, 0), Vector(-5.6, 32.2, 0)),
    Part.LineSegment(Vector(-5.6, 32.2, 0), Vector(-6.8, 32.2, 0)),
    Part.LineSegment(Vector(-6.8, 32.2, 0), Vector(-6.8, 184.6, 0)),
    Part.LineSegment(Vector(-6.8, 184.6, 0), Vector(-5.6, 184.6, 0)),
], False)
sketch14.addConstraint([
    Sketcher.Constraint("Coincident", 0, 2, 1, 1),
    Sketcher.Constraint("Coincident", 1, 2, 2, 1),
    Sketcher.Constraint("Coincident", 2, 2, 3, 1),
    Sketcher.Constraint("Coincident", 3, 2, 0, 1),
    Sketcher.Constraint("Vertical", 0),
    Sketcher.Constraint("Horizontal", 1),
    Sketcher.Constraint("Vertical", 2),
    Sketcher.Constraint("Horizontal", 3),
    Sketcher.Constraint("DistanceX", 1, 2, 1, 1, 1.2),
    Sketcher.Constraint("DistanceY", 0, 2, 0, 1, 152.399558),
    Sketcher.Constraint("DistanceY", -1, 1, 0, 2, 32.18105),
    Sketcher.Constraint("DistanceX", 1, 2, -1, 1, 6.832812),
])
pad4 = body.newObject("PartDesign::Pad", "Pad003")
pad4.Profile = sketch14
pad4.Length = 32
pad4.Reversed = True

# Sketch on YZ plane
sketch15 = body.newObject("Sketcher::SketchObject", "Sketch014")
sketch15.AttachmentSupport = (doc.getObject("YZ_Plane"), [""])
sketch15.MapMode = "FlatFace"
sketch15.AttachmentOffset = App.Placement(Vector(0, 0, -6.832812), App.Rotation())
sketch15.addGeometry([
    Part.LineSegment(Vector(32.2, -4, 0), Vector(32.2, -32, 0)),  # 0
    Part.LineSegment(Vector(32.2, -32, 0), Vector(18.2, -32, 0)),  # 1
    Part.LineSegment(Vector(18.2, -32, 0), Vector(18.2, -7, 0)),  # 2
    Part.LineSegment(Vector(18.2, -7, 0), Vector(29.2, -7, 0)),  # 3
    Part.ArcOfCircle(Part.Circle(Vector(29.2, -4, 0), Vector(0, 0, 1), 3), math.radians(-90), math.radians(0)),  # 4
], False)
sketch15.addConstraint([
    Sketcher.Constraint("Coincident", 0, 2, 1, 1),
    Sketcher.Constraint("Coincident", 1, 2, 2, 1),
    Sketcher.Constraint("Coincident", 2, 2, 3, 1),
    Sketcher.Constraint("Tangent", 3, 2, 4, 1),
    Sketcher.Constraint("Tangent", 4, 2, 0, 1),
    Sketcher.Constraint("Vertical", 0),
    Sketcher.Constraint("Horizontal", 1),
    Sketcher.Constraint("Vertical", 2),
    Sketcher.Constraint("Horizontal", 3),
    Sketcher.Constraint("Radius", 4, 3.0),
    Sketcher.Constraint("DistanceX", 1, 2, 1, 1, 14.0),
    Sketcher.Constraint("DistanceY", 0, 2, 0, 1, 28.0),
    Sketcher.Constraint("DistanceY", 4, 3, -1, 1, 4.0),
    Sketcher.Constraint("DistanceX", -1, 1, 4, 3, 29.18105),
])
pad5 = body.newObject("PartDesign::Pad", "Pad004")
pad5.Profile = sketch15
pad5.Length = 1.2

# Sketch on YZ plane
sketch16 = body.newObject("Sketcher::SketchObject", "Sketch015")
sketch16.AttachmentSupport = (doc.getObject("YZ_Plane"), [""])
sketch16.MapMode = "FlatFace"
sketch16.AttachmentOffset = App.Placement(Vector(0, 0, -6.832812), App.Rotation())
sketch16.addGeometry([
    Part.LineSegment(Vector(184.6, -32, 0), Vector(184.6, -38, 0)),  # 0
    Part.LineSegment(Vector(184.6, -38, 0), Vector(168.6, -38, 0)),  # 1
    Part.LineSegment(Vector(168.6, -38, 0), Vector(168.6, -35, 0)),  # 2
    Part.ArcOfCircle(Part.Circle(Vector(165.6, -35, 0), Vector(0, 0, 1), 3), math.radians(0), math.radians(90)),  # 3
    Part.LineSegment(Vector(165.6, -32, 0), Vector(184.6, -32, 0)),  # 4
], False)
sketch16.addConstraint([
    Sketcher.Constraint("Coincident", 0, 2, 1, 1),
    Sketcher.Constraint("Coincident", 1, 2, 2, 1),
    Sketcher.Constraint("Tangent", 2, 2, 3, 1),
    Sketcher.Constraint("Tangent", 3, 2, 4, 1),
    Sketcher.Constraint("Coincident", 4, 2, 0, 1),
    Sketcher.Constraint("Vertical", 0),
    Sketcher.Constraint("Horizontal", 1),
    Sketcher.Constraint("Vertical", 2),
    Sketcher.Constraint("Horizontal", 4),
    Sketcher.Constraint("Radius", 3, 3.0),
    Sketcher.Constraint("DistanceX", 1, 2, 1, 1, 16.0),
    Sketcher.Constraint("DistanceY", 0, 2, 0, 1, 6.0),
    Sketcher.Constraint("DistanceY", 3, 3, -1, 1, 35.0),
    Sketcher.Constraint("DistanceX", -1, 1, 3, 3, 165.580608),
])
pad6 = body.newObject("PartDesign::Pad", "Pad005")
pad6.Profile = sketch16
pad6.Length = 1.2

# Sketch on YZ plane
sketch17 = body.newObject("Sketcher::SketchObject", "Sketch016")
sketch17.AttachmentSupport = (doc.getObject("YZ_Plane"), [""])
sketch17.MapMode = "FlatFace"
sketch17.AttachmentOffset = App.Placement(Vector(0, 0, -6.832812), App.Rotation())
sketch17.addGeometry([
    Part.LineSegment(Vector(177.8, -34.8, 0), Vector(177.8, -46.8, 0)),
    Part.ArcOfCircle(Part.Circle(Vector(176.2, -46.8, 0), Vector(0, 0, 1), 1.6), math.radians(180), math.radians(360)),
    Part.LineSegment(Vector(174.6, -46.8, 0), Vector(174.6, -34.8, 0)),
    Part.ArcOfCircle(Part.Circle(Vector(176.2, -34.8, 0), Vector(0, 0, 1), 1.6), math.radians(0), math.radians(180)),
], False)
sketch17.addConstraint([
    Sketcher.Constraint("Tangent", 0, 2, 1, 2),
    Sketcher.Constraint("Tangent", 1, 1, 2, 1),
    Sketcher.Constraint("Tangent", 2, 2, 3, 2),
    Sketcher.Constraint("Tangent", 3, 1, 0, 1),
    Sketcher.Constraint("Vertical", 0),
    Sketcher.Constraint("Vertical", 2),
    Sketcher.Constraint("Radius", 1, 1.6),
    Sketcher.Constraint("DistanceY", 0, 2, 0, 1, 12.0),
    Sketcher.Constraint("DistanceY", 1, 3, -1, 1, 46.8),
    Sketcher.Constraint("DistanceX", -1, 1, 1, 3, 176.180608),
])
pocket11 = body.newObject("PartDesign::Pocket", "Pocket010")
pocket11.Profile = sketch17
pocket11.Length = 1.2
pocket11.Reversed = True

# Sketch on YZ plane
sketch18 = body.newObject("Sketcher::SketchObject", "Sketch017")
sketch18.AttachmentSupport = (doc.getObject("YZ_Plane"), [""])
sketch18.MapMode = "FlatFace"
sketch18.AttachmentOffset = App.Placement(Vector(0, 0, -6.832812), App.Rotation())
sketch18.addGeometry([
    Part.LineSegment(Vector(21.2, -25.1, 0), Vector(18.2, -25.1, 0)),
    Part.LineSegment(Vector(18.2, -25.1, 0), Vector(18.2, -21.9, 0)),
    Part.LineSegment(Vector(18.2, -21.9, 0), Vector(21.2, -21.9, 0)),
    Part.ArcOfCircle(Part.Circle(Vector(21.2, -23.5, 0), Vector(0, 0, 1), 1.6), math.radians(-90), math.radians(90)),
], False)
sketch18.addConstraint([
    Sketcher.Constraint("Coincident", 0, 2, 1, 1),
    Sketcher.Constraint("Coincident", 1, 2, 2, 1),
    Sketcher.Constraint("Tangent", 2, 2, 3, 2),
    Sketcher.Constraint("Tangent", 3, 1, 0, 1),
    Sketcher.Constraint("Horizontal", 0),
    Sketcher.Constraint("Vertical", 1),
    Sketcher.Constraint("Horizontal", 2),
    Sketcher.Constraint("Radius", 3, 1.6),
    Sketcher.Constraint("DistanceX", 0, 2, 0, 1, 3.0),
    Sketcher.Constraint("DistanceY", 3, 3, -1, 1, 23.5),
    Sketcher.Constraint("DistanceX", -1, 1, 3, 3, 21.18105),
])
pocket12 = body.newObject("PartDesign::Pocket", "Pocket011")
pocket12.Profile = sketch18
pocket12.Type = "UpToFirst"
pocket12.Reversed = True
doc.recompute()

fillet2 = body.newObject("PartDesign::Fillet", "Fillet001")
fillet2.Base = (pocket12, edges_at(pocket12, [
    (5.667, 222.181, 0.6),
    (-6.233, 18.181, -32),
    (-6.233, 18.181, -7),
    (-6.233, 168.581, -38),
    (-6.233, 184.581, -38),
]))
fillet2.Radius = 1

doc.recompute()
